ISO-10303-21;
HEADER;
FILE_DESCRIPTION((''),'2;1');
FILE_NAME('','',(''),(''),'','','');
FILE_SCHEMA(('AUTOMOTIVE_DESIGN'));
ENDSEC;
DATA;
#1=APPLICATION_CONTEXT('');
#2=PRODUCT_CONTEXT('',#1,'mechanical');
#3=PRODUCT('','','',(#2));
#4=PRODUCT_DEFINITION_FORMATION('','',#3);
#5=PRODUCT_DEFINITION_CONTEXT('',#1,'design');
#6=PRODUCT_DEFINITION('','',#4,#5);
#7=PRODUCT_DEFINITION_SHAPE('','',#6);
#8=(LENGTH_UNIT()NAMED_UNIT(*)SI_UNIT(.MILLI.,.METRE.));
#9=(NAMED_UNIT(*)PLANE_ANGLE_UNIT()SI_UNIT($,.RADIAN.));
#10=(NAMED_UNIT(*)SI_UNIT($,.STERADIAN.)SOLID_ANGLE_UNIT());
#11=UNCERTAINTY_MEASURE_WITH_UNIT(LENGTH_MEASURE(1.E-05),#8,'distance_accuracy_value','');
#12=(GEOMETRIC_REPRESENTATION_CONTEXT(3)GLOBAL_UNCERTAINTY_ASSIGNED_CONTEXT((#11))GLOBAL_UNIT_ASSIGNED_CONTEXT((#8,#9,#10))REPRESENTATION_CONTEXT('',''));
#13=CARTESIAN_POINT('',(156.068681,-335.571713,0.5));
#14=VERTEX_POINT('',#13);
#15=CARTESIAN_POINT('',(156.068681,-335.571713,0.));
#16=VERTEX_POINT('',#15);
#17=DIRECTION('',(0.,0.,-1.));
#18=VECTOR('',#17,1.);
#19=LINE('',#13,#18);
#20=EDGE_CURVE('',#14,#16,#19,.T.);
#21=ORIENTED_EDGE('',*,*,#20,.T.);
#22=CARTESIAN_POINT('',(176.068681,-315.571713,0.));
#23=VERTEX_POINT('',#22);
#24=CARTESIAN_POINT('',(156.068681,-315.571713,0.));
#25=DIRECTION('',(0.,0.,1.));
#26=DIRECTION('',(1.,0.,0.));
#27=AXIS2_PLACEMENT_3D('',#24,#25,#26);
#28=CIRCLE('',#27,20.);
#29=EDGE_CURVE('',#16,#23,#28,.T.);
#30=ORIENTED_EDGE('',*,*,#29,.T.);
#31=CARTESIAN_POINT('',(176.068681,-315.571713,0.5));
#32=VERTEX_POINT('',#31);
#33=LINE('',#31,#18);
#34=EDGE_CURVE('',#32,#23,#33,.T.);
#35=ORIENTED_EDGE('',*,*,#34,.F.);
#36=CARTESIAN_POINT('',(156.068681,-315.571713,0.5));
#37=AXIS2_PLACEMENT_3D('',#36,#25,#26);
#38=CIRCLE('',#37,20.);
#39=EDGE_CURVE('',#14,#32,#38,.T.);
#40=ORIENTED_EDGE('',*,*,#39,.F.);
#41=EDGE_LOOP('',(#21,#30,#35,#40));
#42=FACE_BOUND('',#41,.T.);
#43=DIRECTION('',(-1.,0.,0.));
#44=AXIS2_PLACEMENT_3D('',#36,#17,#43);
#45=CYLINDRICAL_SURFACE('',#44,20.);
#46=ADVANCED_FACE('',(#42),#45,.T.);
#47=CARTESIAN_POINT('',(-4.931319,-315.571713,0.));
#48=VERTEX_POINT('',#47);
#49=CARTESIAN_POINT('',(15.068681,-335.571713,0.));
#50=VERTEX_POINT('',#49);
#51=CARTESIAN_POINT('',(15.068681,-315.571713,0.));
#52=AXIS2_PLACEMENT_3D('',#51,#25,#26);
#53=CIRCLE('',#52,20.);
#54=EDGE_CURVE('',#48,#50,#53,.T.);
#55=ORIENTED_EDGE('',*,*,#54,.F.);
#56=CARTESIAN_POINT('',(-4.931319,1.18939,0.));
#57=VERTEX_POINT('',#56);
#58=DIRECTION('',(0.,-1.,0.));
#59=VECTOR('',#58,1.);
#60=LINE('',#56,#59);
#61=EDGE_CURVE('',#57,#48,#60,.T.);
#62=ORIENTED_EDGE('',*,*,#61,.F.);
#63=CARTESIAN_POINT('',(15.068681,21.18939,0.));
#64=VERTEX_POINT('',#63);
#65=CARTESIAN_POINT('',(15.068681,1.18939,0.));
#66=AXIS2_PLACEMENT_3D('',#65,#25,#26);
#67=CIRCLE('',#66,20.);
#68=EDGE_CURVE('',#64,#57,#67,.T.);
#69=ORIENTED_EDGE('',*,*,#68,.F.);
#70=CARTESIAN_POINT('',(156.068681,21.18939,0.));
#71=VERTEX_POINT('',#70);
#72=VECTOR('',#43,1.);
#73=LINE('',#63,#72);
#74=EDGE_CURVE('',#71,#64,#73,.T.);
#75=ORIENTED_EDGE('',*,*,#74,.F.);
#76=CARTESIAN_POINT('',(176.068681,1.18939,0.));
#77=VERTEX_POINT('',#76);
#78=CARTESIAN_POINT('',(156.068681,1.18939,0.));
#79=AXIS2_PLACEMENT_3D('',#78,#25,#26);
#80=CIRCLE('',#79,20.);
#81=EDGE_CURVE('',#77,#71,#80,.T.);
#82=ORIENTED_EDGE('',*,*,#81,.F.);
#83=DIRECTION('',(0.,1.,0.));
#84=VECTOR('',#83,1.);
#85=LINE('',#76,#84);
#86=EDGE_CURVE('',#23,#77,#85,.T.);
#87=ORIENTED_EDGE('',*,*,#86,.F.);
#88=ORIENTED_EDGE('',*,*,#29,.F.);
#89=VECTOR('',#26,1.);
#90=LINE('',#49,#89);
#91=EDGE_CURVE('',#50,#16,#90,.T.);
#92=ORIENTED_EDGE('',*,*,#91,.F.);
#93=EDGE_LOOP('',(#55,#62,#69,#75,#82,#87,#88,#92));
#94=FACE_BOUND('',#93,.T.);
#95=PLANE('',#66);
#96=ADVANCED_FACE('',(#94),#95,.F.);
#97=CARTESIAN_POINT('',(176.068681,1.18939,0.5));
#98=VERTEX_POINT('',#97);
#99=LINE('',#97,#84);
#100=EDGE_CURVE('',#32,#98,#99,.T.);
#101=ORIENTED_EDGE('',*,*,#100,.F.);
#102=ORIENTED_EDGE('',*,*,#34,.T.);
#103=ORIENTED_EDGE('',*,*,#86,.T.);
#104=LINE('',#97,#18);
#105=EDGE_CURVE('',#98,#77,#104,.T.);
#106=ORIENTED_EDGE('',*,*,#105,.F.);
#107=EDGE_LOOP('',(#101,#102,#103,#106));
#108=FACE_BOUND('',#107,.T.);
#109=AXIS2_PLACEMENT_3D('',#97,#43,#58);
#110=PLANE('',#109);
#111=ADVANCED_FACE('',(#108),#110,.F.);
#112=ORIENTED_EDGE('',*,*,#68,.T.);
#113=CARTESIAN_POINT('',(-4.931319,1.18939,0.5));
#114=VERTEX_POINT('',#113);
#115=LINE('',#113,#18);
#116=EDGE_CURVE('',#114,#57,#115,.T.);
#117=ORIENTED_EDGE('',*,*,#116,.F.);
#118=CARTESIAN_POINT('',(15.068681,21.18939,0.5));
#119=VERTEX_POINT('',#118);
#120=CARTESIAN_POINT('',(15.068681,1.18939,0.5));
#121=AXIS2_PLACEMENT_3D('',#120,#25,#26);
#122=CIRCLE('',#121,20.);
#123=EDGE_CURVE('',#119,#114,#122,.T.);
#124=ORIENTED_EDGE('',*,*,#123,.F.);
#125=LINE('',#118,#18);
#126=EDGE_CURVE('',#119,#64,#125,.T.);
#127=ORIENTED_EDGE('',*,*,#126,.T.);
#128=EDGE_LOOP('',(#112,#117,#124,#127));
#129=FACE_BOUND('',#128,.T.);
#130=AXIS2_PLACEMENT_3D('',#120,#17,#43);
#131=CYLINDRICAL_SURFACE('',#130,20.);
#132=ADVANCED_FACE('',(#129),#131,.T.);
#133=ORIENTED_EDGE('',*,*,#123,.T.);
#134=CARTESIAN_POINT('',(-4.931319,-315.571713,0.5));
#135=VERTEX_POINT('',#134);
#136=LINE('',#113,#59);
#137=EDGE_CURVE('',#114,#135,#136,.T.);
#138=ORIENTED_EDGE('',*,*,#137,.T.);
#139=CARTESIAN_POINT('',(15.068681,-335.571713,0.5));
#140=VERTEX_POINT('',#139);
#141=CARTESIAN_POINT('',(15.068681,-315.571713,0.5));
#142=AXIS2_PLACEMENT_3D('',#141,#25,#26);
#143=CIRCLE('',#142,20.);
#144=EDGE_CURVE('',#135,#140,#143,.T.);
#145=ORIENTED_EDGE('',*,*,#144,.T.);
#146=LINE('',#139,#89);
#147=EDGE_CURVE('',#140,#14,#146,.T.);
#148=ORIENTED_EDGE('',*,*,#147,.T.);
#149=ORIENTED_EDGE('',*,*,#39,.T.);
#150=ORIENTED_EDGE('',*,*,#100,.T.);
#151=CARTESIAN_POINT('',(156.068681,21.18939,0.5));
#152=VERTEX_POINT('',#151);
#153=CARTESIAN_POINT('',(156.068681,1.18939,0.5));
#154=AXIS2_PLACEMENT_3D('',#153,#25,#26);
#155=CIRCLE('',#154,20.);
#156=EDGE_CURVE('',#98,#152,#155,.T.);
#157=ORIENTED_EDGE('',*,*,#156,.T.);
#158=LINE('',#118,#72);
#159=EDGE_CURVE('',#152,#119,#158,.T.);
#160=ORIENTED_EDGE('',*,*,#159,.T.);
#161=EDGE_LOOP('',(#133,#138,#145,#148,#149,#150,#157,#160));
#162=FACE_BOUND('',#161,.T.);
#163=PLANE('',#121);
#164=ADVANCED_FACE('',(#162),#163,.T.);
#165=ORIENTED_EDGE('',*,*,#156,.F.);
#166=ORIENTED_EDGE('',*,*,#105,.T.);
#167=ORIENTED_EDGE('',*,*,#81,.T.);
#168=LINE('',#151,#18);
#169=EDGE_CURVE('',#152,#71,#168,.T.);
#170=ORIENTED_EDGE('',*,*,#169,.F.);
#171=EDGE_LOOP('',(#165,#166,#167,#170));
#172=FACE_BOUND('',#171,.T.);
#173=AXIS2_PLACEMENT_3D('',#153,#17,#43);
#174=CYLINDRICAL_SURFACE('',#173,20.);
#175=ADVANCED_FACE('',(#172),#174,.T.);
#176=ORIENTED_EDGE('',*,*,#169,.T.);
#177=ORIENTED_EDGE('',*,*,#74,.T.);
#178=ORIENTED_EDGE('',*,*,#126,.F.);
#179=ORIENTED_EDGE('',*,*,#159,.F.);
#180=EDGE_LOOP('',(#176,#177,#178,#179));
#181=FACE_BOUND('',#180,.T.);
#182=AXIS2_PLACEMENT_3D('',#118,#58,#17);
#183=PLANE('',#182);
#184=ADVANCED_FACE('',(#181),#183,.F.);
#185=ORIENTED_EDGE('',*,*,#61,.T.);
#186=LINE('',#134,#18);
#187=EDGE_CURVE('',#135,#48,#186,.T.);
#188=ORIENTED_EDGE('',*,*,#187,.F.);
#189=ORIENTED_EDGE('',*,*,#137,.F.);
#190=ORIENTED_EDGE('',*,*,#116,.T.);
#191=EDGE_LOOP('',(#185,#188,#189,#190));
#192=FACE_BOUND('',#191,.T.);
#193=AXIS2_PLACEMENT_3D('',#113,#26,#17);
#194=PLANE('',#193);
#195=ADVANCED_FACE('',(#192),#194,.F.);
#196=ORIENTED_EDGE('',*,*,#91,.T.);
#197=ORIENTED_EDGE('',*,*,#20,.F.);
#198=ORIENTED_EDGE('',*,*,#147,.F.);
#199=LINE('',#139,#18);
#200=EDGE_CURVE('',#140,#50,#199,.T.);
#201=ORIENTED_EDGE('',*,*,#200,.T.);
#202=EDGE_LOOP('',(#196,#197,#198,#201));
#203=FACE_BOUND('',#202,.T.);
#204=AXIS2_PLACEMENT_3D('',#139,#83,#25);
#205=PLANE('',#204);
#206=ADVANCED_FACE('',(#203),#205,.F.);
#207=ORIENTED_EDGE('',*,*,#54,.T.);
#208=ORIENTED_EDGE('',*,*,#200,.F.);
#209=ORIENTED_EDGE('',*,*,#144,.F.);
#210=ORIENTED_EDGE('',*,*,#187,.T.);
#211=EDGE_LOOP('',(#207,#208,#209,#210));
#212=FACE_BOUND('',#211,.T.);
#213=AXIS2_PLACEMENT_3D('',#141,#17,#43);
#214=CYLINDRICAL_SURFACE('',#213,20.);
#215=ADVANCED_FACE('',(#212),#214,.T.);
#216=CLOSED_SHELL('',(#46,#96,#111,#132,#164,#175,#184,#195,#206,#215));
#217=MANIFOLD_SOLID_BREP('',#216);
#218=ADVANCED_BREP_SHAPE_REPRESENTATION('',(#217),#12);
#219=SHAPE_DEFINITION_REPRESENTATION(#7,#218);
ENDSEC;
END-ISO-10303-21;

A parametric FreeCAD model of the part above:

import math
import FreeCAD as App
import Part
import Sketcher
from FreeCAD import Vector

doc = App.newDocument("Part")
body = doc.addObject("PartDesign::Body", "Body")

# Sketch on XY plane
sketch1 = body.newObject("Sketcher::SketchObject", "Sketch")
sketch1.AttachmentSupport = (doc.getObject("XY_Plane"), [""])
sketch1.MapMode = "FlatFace"
sketch1.addGeometry(Part.LineSegment(Vector(156, 21, 0), Vector(15, 21, 0)), False)
sketch1.addGeometry(Part.ArcOfCircle(Part.Circle(Vector(15, 1, 0), Vector(0, 0, 1), 20), math.radians(90), math.radians(180)), False)
sketch1.addGeometry(Part.LineSegment(Vector(-5, 1, 0), Vector(-5, -316, 0)), False)
sketch1.addGeometry(Part.ArcOfCircle(Part.Circle(Vector(15, -316, 0), Vector(0, 0, 1), 20), math.radians(180), math.radians(270)), False)
sketch1.addGeometry(Part.LineSegment(Vector(15, -336, 0), Vector(156, -336, 0)), False)
sketch1.addGeometry(Part.ArcOfCircle(Part.Circle(Vector(156, -316, 0), Vector(0, 0, 1), 20), math.radians(-90), math.radians(0)), False)
sketch1.addGeometry(Part.LineSegment(Vector(176, -316, 0), Vector(176, 1, 0)), False)
sketch1.addGeometry(Part.ArcOfCircle(Part.Circle(Vector(156, 1, 0), Vector(0, 0, 1), 20), math.radians(0), math.radians(90)), False)
sketch1.addConstraint(Sketcher.Constraint("Tangent", 0, 2, 1, 1))
sketch1.addConstraint(Sketcher.Constraint("Tangent", 1, 2, 2, 1))
sketch1.addConstraint(Sketcher.Constraint("Tangent", 2, 2, 3, 1))
sketch1.addConstraint(Sketcher.Constraint("Tangent", 3, 2, 4, 1))
sketch1.addConstraint(Sketcher.Constraint("Tangent", 4, 2, 5, 1))
sketch1.addConstraint(Sketcher.Constraint("Tangent", 5, 2, 6, 1))
sketch1.addConstraint(Sketcher.Constraint("Tangent", 6, 2, 7, 1))
sketch1.addConstraint(Sketcher.Constraint("Tangent", 7, 2, 0, 1))
sketch1.addConstraint(Sketcher.Constraint("Horizontal", 0))
sketch1.addConstraint(Sketcher.Constraint("Vertical", 2))
sketch1.addConstraint(Sketcher.Constraint("Horizontal", 4))
sketch1.addConstraint(Sketcher.Constraint("Vertical", 6))
sketch1.addConstraint(Sketcher.Constraint("Equal", 1, 3))
sketch1.addConstraint(Sketcher.Constraint("Equal", 3, 5))
sketch1.addConstraint(Sketcher.Constraint("Equal", 5, 7))
sketch1.addConstraint(Sketcher.Constraint("Radius", 1, 20.0))
sketch1.addConstraint(Sketcher.Constraint("DistanceX", 0, 2, 0, 1, 141.0))
sketch1.addConstraint(Sketcher.Constraint("DistanceY", 2, 2, 2, 1, 316.761102))
sketch1.addConstraint(Sketcher.Constraint("DistanceX", -1, 1, 1, 3, 15.068681))
sketch1.addConstraint(Sketcher.Constraint("DistanceY", -1, 1, 1, 3, 1.18939))
pad1 = body.newObject("PartDesign::Pad", "Pad")
pad1.Profile = sketch1
pad1.Length = 0.5

doc.recompute()
